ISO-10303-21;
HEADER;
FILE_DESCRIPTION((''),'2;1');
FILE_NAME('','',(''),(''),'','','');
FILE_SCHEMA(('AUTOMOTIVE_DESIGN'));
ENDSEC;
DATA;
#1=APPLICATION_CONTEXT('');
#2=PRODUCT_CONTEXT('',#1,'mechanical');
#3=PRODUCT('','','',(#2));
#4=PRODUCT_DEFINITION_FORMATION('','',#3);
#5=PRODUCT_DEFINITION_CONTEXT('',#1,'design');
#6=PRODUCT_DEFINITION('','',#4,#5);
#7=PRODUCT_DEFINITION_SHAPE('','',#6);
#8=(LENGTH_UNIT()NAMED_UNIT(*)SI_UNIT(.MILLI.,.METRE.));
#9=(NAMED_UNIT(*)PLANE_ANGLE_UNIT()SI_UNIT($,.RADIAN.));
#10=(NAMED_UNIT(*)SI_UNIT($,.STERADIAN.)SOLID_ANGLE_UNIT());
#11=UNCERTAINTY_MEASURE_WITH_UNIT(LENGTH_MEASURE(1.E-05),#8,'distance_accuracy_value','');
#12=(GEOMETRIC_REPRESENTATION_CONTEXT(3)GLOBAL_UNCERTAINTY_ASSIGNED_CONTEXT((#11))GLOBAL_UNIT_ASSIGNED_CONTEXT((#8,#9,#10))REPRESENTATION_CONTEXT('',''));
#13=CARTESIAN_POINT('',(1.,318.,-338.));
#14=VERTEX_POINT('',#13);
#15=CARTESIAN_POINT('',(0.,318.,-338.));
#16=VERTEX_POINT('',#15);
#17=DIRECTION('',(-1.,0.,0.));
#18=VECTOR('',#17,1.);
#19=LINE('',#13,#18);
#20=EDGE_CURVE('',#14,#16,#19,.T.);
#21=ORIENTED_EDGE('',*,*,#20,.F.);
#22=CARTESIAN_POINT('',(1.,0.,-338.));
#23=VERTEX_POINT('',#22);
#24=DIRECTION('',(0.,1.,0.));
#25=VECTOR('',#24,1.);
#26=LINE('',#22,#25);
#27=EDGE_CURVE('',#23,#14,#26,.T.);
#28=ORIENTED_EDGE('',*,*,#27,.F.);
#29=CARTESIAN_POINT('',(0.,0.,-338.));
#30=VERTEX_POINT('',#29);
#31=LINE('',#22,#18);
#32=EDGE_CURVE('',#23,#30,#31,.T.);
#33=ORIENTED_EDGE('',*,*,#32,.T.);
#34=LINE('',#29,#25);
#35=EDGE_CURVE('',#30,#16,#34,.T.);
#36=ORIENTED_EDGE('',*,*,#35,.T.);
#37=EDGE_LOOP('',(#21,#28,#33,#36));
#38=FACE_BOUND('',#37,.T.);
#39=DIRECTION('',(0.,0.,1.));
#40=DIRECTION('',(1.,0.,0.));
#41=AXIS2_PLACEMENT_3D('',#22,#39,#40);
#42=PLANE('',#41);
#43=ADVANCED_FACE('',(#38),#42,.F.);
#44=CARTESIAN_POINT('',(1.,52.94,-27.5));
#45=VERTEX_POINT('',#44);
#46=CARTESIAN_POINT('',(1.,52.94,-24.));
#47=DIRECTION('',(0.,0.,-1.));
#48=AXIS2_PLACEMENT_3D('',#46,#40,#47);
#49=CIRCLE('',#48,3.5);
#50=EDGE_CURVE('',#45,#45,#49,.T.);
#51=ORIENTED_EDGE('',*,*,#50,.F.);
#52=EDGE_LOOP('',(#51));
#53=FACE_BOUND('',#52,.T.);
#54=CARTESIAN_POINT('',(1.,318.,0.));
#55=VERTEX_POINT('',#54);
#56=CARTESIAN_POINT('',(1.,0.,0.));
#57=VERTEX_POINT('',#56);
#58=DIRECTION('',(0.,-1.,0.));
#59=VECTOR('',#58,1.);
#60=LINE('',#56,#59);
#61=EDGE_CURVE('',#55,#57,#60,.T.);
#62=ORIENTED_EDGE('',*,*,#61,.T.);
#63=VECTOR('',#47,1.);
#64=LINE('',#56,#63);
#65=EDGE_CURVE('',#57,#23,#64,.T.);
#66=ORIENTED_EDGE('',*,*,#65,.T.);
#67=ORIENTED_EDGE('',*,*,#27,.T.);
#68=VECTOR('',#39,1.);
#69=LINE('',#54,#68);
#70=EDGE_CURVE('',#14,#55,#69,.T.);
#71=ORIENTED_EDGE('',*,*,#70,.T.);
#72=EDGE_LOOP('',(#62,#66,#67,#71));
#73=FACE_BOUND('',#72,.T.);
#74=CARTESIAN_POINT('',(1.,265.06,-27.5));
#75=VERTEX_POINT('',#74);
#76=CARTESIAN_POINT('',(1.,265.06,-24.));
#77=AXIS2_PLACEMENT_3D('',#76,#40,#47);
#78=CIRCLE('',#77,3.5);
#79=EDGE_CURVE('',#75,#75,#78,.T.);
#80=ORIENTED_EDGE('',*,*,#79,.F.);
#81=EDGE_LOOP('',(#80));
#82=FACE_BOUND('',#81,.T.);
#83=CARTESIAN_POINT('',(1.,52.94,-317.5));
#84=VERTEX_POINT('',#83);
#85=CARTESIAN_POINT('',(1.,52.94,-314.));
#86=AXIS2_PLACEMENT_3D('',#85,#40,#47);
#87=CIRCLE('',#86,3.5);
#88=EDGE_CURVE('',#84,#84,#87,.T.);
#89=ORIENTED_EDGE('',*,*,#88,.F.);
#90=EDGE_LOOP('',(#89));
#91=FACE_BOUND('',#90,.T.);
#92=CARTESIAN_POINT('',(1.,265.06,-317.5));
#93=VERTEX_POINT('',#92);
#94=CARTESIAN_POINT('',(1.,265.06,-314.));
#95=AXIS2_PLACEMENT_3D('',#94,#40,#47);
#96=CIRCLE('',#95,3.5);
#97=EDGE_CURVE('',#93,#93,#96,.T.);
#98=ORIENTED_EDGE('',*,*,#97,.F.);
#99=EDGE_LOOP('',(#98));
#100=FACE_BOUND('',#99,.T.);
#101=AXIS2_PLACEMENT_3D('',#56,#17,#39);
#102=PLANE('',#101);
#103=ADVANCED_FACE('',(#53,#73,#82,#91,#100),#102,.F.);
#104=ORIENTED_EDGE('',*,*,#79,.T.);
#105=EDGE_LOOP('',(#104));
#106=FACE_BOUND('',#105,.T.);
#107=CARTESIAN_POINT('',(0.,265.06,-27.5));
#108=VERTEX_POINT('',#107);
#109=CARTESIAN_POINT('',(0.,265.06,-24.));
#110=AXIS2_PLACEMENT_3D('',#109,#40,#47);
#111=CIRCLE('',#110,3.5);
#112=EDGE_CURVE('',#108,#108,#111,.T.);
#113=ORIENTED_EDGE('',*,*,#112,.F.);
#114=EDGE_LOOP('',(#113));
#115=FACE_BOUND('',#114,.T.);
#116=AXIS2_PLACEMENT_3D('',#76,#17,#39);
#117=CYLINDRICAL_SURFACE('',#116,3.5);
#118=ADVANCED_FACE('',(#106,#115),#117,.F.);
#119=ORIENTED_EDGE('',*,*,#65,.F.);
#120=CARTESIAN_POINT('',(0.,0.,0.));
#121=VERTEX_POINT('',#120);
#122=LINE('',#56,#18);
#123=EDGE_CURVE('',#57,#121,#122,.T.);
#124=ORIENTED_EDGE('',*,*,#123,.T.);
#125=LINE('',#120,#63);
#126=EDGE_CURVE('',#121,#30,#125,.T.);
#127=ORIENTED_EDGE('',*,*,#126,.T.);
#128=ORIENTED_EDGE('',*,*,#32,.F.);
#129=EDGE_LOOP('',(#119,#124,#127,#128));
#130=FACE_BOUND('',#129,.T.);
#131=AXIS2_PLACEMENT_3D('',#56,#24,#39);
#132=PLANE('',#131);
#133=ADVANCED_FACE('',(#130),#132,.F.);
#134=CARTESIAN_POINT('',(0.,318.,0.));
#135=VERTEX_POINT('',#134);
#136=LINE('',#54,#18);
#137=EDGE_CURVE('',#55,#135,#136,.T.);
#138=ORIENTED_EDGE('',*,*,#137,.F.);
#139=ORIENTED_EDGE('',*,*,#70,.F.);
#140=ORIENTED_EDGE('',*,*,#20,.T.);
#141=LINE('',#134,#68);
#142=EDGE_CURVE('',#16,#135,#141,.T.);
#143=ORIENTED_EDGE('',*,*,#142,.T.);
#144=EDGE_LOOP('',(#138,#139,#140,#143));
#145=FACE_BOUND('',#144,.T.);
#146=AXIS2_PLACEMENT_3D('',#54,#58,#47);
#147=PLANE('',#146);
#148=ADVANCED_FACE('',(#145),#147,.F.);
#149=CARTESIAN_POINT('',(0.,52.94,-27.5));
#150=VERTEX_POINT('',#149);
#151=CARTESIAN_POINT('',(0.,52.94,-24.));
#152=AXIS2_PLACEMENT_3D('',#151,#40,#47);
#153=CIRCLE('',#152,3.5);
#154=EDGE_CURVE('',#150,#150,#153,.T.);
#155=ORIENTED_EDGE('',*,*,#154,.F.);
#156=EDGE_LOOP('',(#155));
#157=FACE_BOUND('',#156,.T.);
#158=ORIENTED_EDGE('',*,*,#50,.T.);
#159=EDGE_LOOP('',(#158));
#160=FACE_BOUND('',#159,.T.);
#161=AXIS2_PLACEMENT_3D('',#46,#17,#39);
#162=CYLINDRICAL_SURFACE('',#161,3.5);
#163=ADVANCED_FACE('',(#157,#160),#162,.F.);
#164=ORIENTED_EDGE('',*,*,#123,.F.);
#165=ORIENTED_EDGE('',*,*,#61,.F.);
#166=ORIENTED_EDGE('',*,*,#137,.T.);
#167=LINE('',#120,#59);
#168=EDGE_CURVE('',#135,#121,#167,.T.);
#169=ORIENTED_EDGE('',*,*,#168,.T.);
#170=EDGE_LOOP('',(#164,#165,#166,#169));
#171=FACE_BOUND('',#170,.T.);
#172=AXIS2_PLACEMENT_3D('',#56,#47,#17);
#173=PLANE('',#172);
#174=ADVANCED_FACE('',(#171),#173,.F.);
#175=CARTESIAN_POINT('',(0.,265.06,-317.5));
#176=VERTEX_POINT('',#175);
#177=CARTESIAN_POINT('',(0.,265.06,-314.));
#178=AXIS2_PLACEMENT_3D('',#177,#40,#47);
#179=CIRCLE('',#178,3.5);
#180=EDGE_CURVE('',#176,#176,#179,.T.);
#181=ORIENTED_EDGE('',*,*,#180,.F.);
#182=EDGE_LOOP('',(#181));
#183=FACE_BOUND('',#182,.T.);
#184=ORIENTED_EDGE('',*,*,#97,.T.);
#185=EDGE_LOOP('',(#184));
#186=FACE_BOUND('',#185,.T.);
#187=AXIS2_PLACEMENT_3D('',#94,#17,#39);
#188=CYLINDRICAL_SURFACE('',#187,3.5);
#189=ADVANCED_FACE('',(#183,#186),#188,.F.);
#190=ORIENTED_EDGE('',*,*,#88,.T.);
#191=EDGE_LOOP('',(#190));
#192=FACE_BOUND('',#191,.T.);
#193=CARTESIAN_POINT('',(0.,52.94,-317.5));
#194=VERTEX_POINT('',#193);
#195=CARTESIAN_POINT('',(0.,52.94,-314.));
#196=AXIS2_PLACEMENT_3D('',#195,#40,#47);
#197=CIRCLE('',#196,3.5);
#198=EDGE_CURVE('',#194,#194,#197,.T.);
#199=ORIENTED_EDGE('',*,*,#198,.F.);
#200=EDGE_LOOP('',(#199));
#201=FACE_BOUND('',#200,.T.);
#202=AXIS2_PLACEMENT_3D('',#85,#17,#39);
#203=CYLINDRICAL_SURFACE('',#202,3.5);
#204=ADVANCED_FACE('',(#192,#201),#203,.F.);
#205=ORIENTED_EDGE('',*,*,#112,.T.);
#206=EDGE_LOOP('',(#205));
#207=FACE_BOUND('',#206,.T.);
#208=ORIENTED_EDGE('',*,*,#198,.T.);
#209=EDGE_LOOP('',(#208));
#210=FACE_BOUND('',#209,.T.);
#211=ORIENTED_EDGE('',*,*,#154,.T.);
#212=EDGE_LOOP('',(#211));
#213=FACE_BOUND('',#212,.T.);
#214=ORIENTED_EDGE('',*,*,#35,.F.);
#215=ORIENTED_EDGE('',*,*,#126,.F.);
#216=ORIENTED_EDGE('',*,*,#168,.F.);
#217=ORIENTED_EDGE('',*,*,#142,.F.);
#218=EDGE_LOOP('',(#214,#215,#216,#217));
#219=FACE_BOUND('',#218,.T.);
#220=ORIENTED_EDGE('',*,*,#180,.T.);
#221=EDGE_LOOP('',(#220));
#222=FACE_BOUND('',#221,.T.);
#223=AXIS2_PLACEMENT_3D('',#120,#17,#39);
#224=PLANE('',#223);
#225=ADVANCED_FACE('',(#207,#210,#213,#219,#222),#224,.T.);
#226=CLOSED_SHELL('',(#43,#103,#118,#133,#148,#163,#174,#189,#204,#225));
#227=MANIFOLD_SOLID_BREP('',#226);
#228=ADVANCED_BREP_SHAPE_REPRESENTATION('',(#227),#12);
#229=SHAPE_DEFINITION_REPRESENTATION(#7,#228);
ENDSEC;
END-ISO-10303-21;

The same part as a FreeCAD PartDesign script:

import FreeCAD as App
import Part
import Sketcher

V = App.Vector
Q = App.Units.Quantity


def add_polygon(sketch, points):
    """Adds a closed chain of lines whose ends are joined by coincident constraints."""
    first, n = sketch.GeometryCount, len(points)
    for a, b in zip(points, points[1:] + points[:1]):
        sketch.addGeometry(Part.LineSegment(App.Vector(*a, 0), App.Vector(*b, 0)), False)
    for i in range(n):
        sketch.addConstraint(Sketcher.Constraint("Coincident", first + i, 2, first + (i + 1) % n, 1))

doc = App.newDocument("Part")
body = doc.addObject("PartDesign::Body", "Body")

sketch1 = doc.addObject("Sketcher::SketchObject", "Sketch")
body.addObject(sketch1)
sketch1.AttachmentSupport = (doc.YZ_Plane, [""])
sketch1.MapMode = "FlatFace"
add_polygon(sketch1, [(318, 0), (0, 0), (0, -338), (318, -338)])
sketch1.addGeometry(Part.Circle(V(52.9, -24, 0), V(0, 0, 1), 3.5), False)
sketch1.addGeometry(Part.Circle(V(52.9, -314, 0), V(0, 0, 1), 3.5), False)
sketch1.addGeometry(Part.Circle(V(265.1, -24, 0), V(0, 0, 1), 3.5), False)
sketch1.addGeometry(Part.Circle(V(265.1, -314, 0), V(0, 0, 1), 3.5), False)
sketch1.addConstraint([
    Sketcher.Constraint("Horizontal", 0),
    Sketcher.Constraint("Vertical", 1),
    Sketcher.Constraint("Horizontal", 2),
    Sketcher.Constraint("Vertical", 3),
    Sketcher.Constraint("Coincident", 0, 2, -1, 1),
    Sketcher.Constraint("Equal", 4, 5),
    Sketcher.Constraint("Equal", 5, 6),
    Sketcher.Constraint("Equal", 6, 7),
    Sketcher.Constraint("Horizontal", 4, 3, 6, 3),
    Sketcher.Constraint("Horizontal", 5, 3, 7, 3),
    Sketcher.Constraint("Vertical", 4, 3, 5, 3),
    Sketcher.Constraint("Vertical", 6, 3, 7, 3),
    Sketcher.Constraint("Diameter", 4, Q("7 mm")),
    Sketcher.Constraint("DistanceX", 0, 2, 0, 1, Q("318 mm")),
    Sketcher.Constraint("DistanceY", 1, 2, 1, 1, Q("338 mm")),
    Sketcher.Constraint("DistanceY", 4, 3, -1, 1, Q("24 mm")),
    Sketcher.Constraint("DistanceY", 5, 3, -1, 1, Q("314 mm")),
    Sketcher.Constraint("DistanceX", -1, 1, 4, 3, Q("52.94 mm")),
    Sketcher.Constraint("DistanceX", -1, 1, 6, 3, Q("265.06 mm")),
])
pad1 = doc.addObject("PartDesign::Pad", "Pad")
body.addObject(pad1)
pad1.Profile = sketch1
pad1.Length = 1

doc.recompute()
